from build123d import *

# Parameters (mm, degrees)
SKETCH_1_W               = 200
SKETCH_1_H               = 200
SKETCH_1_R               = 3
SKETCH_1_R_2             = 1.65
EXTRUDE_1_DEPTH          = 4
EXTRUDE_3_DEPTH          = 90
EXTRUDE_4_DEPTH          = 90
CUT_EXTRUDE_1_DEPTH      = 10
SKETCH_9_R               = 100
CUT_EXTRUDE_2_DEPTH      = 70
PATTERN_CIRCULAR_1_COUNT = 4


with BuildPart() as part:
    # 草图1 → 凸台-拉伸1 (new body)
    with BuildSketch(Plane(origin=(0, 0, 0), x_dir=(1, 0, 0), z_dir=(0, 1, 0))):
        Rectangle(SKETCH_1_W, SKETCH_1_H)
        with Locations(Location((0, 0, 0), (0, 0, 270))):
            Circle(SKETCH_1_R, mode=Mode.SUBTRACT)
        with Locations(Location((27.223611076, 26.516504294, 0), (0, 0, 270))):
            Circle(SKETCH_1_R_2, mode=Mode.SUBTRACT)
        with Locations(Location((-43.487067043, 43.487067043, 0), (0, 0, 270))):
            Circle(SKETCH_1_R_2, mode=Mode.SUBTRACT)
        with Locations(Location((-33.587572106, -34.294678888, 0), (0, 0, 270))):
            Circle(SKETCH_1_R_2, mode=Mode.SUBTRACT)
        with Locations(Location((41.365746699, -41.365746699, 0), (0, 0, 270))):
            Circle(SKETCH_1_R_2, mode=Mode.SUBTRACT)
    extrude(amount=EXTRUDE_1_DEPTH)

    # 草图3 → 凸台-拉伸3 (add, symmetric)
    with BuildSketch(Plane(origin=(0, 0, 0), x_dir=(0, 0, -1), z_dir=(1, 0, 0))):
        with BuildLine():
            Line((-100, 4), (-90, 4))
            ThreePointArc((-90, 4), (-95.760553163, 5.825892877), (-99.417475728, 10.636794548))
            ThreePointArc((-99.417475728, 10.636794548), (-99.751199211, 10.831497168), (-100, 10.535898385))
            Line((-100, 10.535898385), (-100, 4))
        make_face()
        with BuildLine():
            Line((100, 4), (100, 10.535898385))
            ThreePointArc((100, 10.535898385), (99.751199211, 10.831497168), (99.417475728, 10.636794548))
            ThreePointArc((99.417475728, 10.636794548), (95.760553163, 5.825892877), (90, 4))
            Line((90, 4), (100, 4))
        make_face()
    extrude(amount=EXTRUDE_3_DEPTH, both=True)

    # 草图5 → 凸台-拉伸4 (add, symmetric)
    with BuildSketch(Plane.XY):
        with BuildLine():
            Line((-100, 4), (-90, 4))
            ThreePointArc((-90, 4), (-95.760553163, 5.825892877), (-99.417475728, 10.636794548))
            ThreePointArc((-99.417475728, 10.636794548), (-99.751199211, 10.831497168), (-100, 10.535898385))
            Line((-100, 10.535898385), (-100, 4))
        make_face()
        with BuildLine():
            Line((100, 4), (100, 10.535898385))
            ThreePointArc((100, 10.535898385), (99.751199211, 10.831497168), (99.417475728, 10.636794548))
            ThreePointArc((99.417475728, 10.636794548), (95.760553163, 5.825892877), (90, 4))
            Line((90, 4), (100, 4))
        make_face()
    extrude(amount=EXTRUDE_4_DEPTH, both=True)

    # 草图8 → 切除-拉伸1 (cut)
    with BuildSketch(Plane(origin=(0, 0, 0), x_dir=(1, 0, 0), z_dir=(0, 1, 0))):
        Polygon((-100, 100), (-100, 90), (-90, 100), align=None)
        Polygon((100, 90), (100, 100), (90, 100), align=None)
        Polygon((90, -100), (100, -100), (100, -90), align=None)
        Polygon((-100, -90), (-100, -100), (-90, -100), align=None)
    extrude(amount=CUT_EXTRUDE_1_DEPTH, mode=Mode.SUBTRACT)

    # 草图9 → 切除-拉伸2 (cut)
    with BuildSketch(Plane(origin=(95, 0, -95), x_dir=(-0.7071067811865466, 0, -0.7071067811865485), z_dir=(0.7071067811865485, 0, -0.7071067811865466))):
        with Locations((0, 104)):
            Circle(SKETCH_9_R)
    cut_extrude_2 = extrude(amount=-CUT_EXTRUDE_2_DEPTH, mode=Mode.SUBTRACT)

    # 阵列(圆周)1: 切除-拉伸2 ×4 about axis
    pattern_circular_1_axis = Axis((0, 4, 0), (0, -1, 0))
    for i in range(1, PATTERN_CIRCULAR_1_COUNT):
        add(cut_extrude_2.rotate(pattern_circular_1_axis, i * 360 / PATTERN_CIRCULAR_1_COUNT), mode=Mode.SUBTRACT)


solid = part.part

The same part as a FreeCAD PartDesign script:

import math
import FreeCAD as App
import Part
import Sketcher
Q = App.Units.Quantity

doc = App.newDocument("Part")
body = doc.addObject("PartDesign::Body", "Body")

# Sketch on XZ plane
sketch1 = body.newObject("Sketcher::SketchObject", "Sketch")
sketch1.AttachmentSupport = (doc.getObject("XZ_Plane"), [""])
sketch1.MapMode = "FlatFace"
sketch1.addGeometry(Part.LineSegment(App.Vector(-100, -100, 0), App.Vector(-100, 100, 0)), False)
sketch1.addGeometry(Part.LineSegment(App.Vector(-100, 100, 0), App.Vector(100, 100, 0)), False)
sketch1.addGeometry(Part.LineSegment(App.Vector(100, 100, 0), App.Vector(100, -100, 0)), False)
sketch1.addGeometry(Part.LineSegment(App.Vector(100, -100, 0), App.Vector(-100, -100, 0)), False)
sketch1.addGeometry(Part.Circle(App.Vector(-33.587572, 34.294679, 0), App.Vector(0, 0, 1), 1.65), False)
sketch1.addGeometry(Part.Circle(App.Vector(41.365747, 41.365747, 0), App.Vector(0, 0, 1), 1.65), False)
sketch1.addGeometry(Part.Circle(App.Vector(0, 0, 0), App.Vector(0, 0, 1), 3), False)
sketch1.addGeometry(Part.Circle(App.Vector(-43.487067, -43.487067, 0), App.Vector(0, 0, 1), 1.65), False)
sketch1.addGeometry(Part.Circle(App.Vector(27.223611, -26.516504, 0), App.Vector(0, 0, 1), 1.65), False)
sketch1.addConstraint(Sketcher.Constraint("Coincident", 0, 2, 1, 1))
sketch1.addConstraint(Sketcher.Constraint("Coincident", 1, 2, 2, 1))
sketch1.addConstraint(Sketcher.Constraint("Coincident", 2, 2, 3, 1))
sketch1.addConstraint(Sketcher.Constraint("Coincident", 3, 2, 0, 1))
sketch1.addConstraint(Sketcher.Constraint("Vertical", 0))
sketch1.addConstraint(Sketcher.Constraint("Horizontal", 1))
sketch1.addConstraint(Sketcher.Constraint("Vertical", 2))
sketch1.addConstraint(Sketcher.Constraint("Horizontal", 3))
sketch1.addConstraint(Sketcher.Constraint("Coincident", 6, 3, -1, 1))
sketch1.addConstraint(Sketcher.Constraint("Equal", 4, 5))
sketch1.addConstraint(Sketcher.Constraint("Equal", 5, 7))
sketch1.addConstraint(Sketcher.Constraint("Equal", 7, 8))
sketch1.addConstraint(Sketcher.Constraint("Symmetric", 0, 2, 2, 2, -1, 1))
sketch1.addConstraint(Sketcher.Constraint("Equal", 3, 0))
sketch1.addConstraint(Sketcher.Constraint("Diameter", 6, Q("6 mm")))
sketch1.addConstraint(Sketcher.Constraint("Diameter", 4, Q("3.3 mm")))
sketch1.addConstraint(Sketcher.Constraint("DistanceX", 1, 1, 1, 2, Q("200 mm")))
sketch1.addConstraint(Sketcher.Constraint("DistanceY", -1, 1, 4, 3, Q("34.294679 mm")))
sketch1.addConstraint(Sketcher.Constraint("DistanceX", -1, 1, 8, 3, Q("27.223611 mm")))
sketch1.addConstraint(Sketcher.Constraint("DistanceX", 4, 3, 5, 3, Q("74.953319 mm")))
sketch1.addConstraint(Sketcher.Constraint("DistanceY", 8, 3, 5, 3, Q("67.882251 mm")))
sketch1.addConstraint(Sketcher.Constraint("DistanceX", 7, 3, 8, 3, Q("70.710678 mm")))
sketch1.addConstraint(Sketcher.Constraint("DistanceX", 4, 3, -1, 1, Q("33.587572 mm")))
sketch1.addConstraint(Sketcher.Constraint("DistanceY", -1, 1, 5, 3, Q("41.365747 mm")))
sketch1.addConstraint(Sketcher.Constraint("DistanceY", 7, 3, -1, 1, Q("43.487067 mm")))
pad1 = body.newObject("PartDesign::Pad", "Pad")
pad1.Profile = sketch1
pad1.Length = 4
pad1.Reversed = True

# Sketch on YZ plane
sketch2 = body.newObject("Sketcher::SketchObject", "Sketch001")
sketch2.AttachmentSupport = (doc.getObject("YZ_Plane"), [""])
sketch2.MapMode = "FlatFace"
sketch2.addGeometry(Part.LineSegment(App.Vector(4, 100, 0), App.Vector(4, 90, 0)), False)
sketch2.addGeometry(Part.ArcOfCircle(Part.Circle(App.Vector(14, 90, 0), App.Vector(0, 0, 1), 10), math.radians(109.65286), math.radians(180)), False)
sketch2.addGeometry(Part.ArcOfCircle(Part.Circle(App.Vector(10.535898, 99.7, 0), App.Vector(0, 0, 1), 0.3), math.radians(-70.34714), math.radians(90)), False)
sketch2.addGeometry(Part.LineSegment(App.Vector(10.535898, 100, 0), App.Vector(4, 100, 0)), False)
sketch2.addGeometry(Part.LineSegment(App.Vector(4, -100, 0), App.Vector(10.535898, -100, 0)), False)
sketch2.addGeometry(Part.ArcOfCircle(Part.Circle(App.Vector(10.535898, -99.7, 0), App.Vector(0, 0, 1), 0.3), math.radians(-90), math.radians(70.34714)), False)
sketch2.addGeometry(Part.ArcOfCircle(Part.Circle(App.Vector(14, -90, 0), App.Vector(0, 0, 1), 10), math.radians(180), math.radians(250.34714)), False)
sketch2.addGeometry(Part.LineSegment(App.Vector(4, -90, 0), App.Vector(4, -100, 0)), False)
sketch2.addConstraint(Sketcher.Constraint("Tangent", 0, 2, 1, 2))
sketch2.addConstraint(Sketcher.Constraint("Tangent", 1, 1, 2, 1))
sketch2.addConstraint(Sketcher.Constraint("Tangent", 2, 2, 3, 1))
sketch2.addConstraint(Sketcher.Constraint("Coincident", 3, 2, 0, 1))
sketch2.addConstraint(Sketcher.Constraint("Tangent", 4, 2, 5, 1))
sketch2.addConstraint(Sketcher.Constraint("Tangent", 5, 2, 6, 2))
sketch2.addConstraint(Sketcher.Constraint("Tangent", 6, 1, 7, 1))
sketch2.addConstraint(Sketcher.Constraint("Coincident", 7, 2, 4, 1))
sketch2.addConstraint(Sketcher.Constraint("Vertical", 0))
sketch2.addConstraint(Sketcher.Constraint("Horizontal", 3))
sketch2.addConstraint(Sketcher.Constraint("Horizontal", 4))
sketch2.addConstraint(Sketcher.Constraint("Vertical", 7))
sketch2.addConstraint(Sketcher.Constraint("Equal", 2, 5))
sketch2.addConstraint(Sketcher.Constraint("Equal", 1, 6))
sketch2.addConstraint(Sketcher.Constraint("Symmetric", 2, 3, 5, 3, -1))
sketch2.addConstraint(Sketcher.Constraint("Vertical", 1, 3, 6, 3))
sketch2.addConstraint(Sketcher.Constraint("Radius", 1, Q("10 mm")))
sketch2.addConstraint(Sketcher.Constraint("Radius", 2, Q("0.3 mm")))
sketch2.addConstraint(Sketcher.Constraint("DistanceY", 0, 2, 0, 1, Q("10 mm")))
sketch2.addConstraint(Sketcher.Constraint("DistanceX", -1, 1, 1, 3, Q("14 mm")))
sketch2.addConstraint(Sketcher.Constraint("DistanceY", -1, 1, 1, 3, Q("90 mm")))
pad2 = body.newObject("PartDesign::Pad", "Pad001")
pad2.Profile = sketch2
pad2.Length = 180
pad2.Midplane = True

# Sketch on XY plane
sketch3 = body.newObject("Sketcher::SketchObject", "Sketch002")
sketch3.AttachmentSupport = (doc.getObject("XY_Plane"), [""])
sketch3.MapMode = "FlatFace"
sketch3.addGeometry(Part.LineSegment(App.Vector(-100, 4, 0), App.Vector(-90, 4, 0)), False)
sketch3.addGeometry(Part.ArcOfCircle(Part.Circle(App.Vector(-90, 14, 0), App.Vector(0, 0, 1), 10), math.radians(-160.34714), math.radians(-90)), False)
sketch3.addGeometry(Part.ArcOfCircle(Part.Circle(App.Vector(-99.7, 10.535898, 0), App.Vector(0, 0, 1), 0.3), math.radians(19.65286), math.radians(180)), False)
sketch3.addGeometry(Part.LineSegment(App.Vector(-100, 10.535898, 0), App.Vector(-100, 4, 0)), False)
sketch3.addGeometry(Part.LineSegment(App.Vector(100, 4, 0), App.Vector(100, 10.535898, 0)), False)
sketch3.addGeometry(Part.ArcOfCircle(Part.Circle(App.Vector(99.7, 10.535898, 0), App.Vector(0, 0, 1), 0.3), math.radians(0), math.radians(160.34714)), False)
sketch3.addGeometry(Part.ArcOfCircle(Part.Circle(App.Vector(90, 14, 0), App.Vector(0, 0, 1), 10), math.radians(-90), math.radians(-19.65286)), False)
sketch3.addGeometry(Part.LineSegment(App.Vector(90, 4, 0), App.Vector(100, 4, 0)), False)
sketch3.addConstraint(Sketcher.Constraint("Tangent", 0, 2, 1, 2))
sketch3.addConstraint(Sketcher.Constraint("Tangent", 1, 1, 2, 1))
sketch3.addConstraint(Sketcher.Constraint("Tangent", 2, 2, 3, 1))
sketch3.addConstraint(Sketcher.Constraint("Coincident", 3, 2, 0, 1))
sketch3.addConstraint(Sketcher.Constraint("Tangent", 4, 2, 5, 1))
sketch3.addConstraint(Sketcher.Constraint("Tangent", 5, 2, 6, 2))
sketch3.addConstraint(Sketcher.Constraint("Tangent", 6, 1, 7, 1))
sketch3.addConstraint(Sketcher.Constraint("Coincident", 7, 2, 4, 1))
sketch3.addConstraint(Sketcher.Constraint("Horizontal", 0))
sketch3.addConstraint(Sketcher.Constraint("Vertical", 3))
sketch3.addConstraint(Sketcher.Constraint("Vertical", 4))
sketch3.addConstraint(Sketcher.Constraint("Horizontal", 7))
sketch3.addConstraint(Sketcher.Constraint("Equal", 2, 5))
sketch3.addConstraint(Sketcher.Constraint("Equal", 1, 6))
sketch3.addConstraint(Sketcher.Constraint("Symmetric", 2, 3, 5, 3, -2))
sketch3.addConstraint(Sketcher.Constraint("Horizontal", 1, 3, 6, 3))
sketch3.addConstraint(Sketcher.Constraint("Radius", 1, Q("10 mm")))
sketch3.addConstraint(Sketcher.Constraint("Radius", 2, Q("0.3 mm")))
sketch3.addConstraint(Sketcher.Constraint("DistanceX", 0, 1, 0, 2, Q("10 mm")))
sketch3.addConstraint(Sketcher.Constraint("DistanceX", 1, 3, -1, 1, Q("90 mm")))
sketch3.addConstraint(Sketcher.Constraint("DistanceY", -1, 1, 1, 3, Q("14 mm")))
pad3 = body.newObject("PartDesign::Pad", "Pad002")
pad3.Profile = sketch3
pad3.Length = 180
pad3.Midplane = True

# Sketch on XZ plane
sketch4 = body.newObject("Sketcher::SketchObject", "Sketch003")
sketch4.AttachmentSupport = (doc.getObject("XZ_Plane"), [""])
sketch4.MapMode = "FlatFace"
sketch4.addGeometry(Part.LineSegment(App.Vector(-100, -100, 0), App.Vector(-100, -90, 0)), False)
sketch4.addGeometry(Part.LineSegment(App.Vector(-100, -90, 0), App.Vector(-90, -100, 0)), False)
sketch4.addGeometry(Part.LineSegment(App.Vector(-90, -100, 0), App.Vector(-100, -100, 0)), False)
sketch4.addGeometry(Part.LineSegment(App.Vector(100, -90, 0), App.Vector(100, -100, 0)), False)
sketch4.addGeometry(Part.LineSegment(App.Vector(100, -100, 0), App.Vector(90, -100, 0)), False)
sketch4.addGeometry(Part.LineSegment(App.Vector(90, -100, 0), App.Vector(100, -90, 0)), False)
sketch4.addGeometry(Part.LineSegment(App.Vector(90, 100, 0), App.Vector(100, 100, 0)), False)
sketch4.addGeometry(Part.LineSegment(App.Vector(100, 100, 0), App.Vector(100, 90, 0)), False)
sketch4.addGeometry(Part.LineSegment(App.Vector(100, 90, 0), App.Vector(90, 100, 0)), False)
sketch4.addGeometry(Part.LineSegment(App.Vector(-100, 90, 0), App.Vector(-100, 100, 0)), False)
sketch4.addGeometry(Part.LineSegment(App.Vector(-100, 100, 0), App.Vector(-90, 100, 0)), False)
sketch4.addGeometry(Part.LineSegment(App.Vector(-90, 100, 0), App.Vector(-100, 90, 0)), False)
sketch4.addConstraint(Sketcher.Constraint("Coincident", 0, 2, 1, 1))
sketch4.addConstraint(Sketcher.Constraint("Coincident", 1, 2, 2, 1))
sketch4.addConstraint(Sketcher.Constraint("Coincident", 2, 2, 0, 1))
sketch4.addConstraint(Sketcher.Constraint("Coincident", 3, 2, 4, 1))
sketch4.addConstraint(Sketcher.Constraint("Coincident", 4, 2, 5, 1))
sketch4.addConstraint(Sketcher.Constraint("Coincident", 5, 2, 3, 1))
sketch4.addConstraint(Sketcher.Constraint("Coincident", 6, 2, 7, 1))
sketch4.addConstraint(Sketcher.Constraint("Coincident", 7, 2, 8, 1))
sketch4.addConstraint(Sketcher.Constraint("Coincident", 8, 2, 6, 1))
sketch4.addConstraint(Sketcher.Constraint("Coincident", 9, 2, 10, 1))
sketch4.addConstraint(Sketcher.Constraint("Coincident", 10, 2, 11, 1))
sketch4.addConstraint(Sketcher.Constraint("Coincident", 11, 2, 9, 1))
sketch4.addConstraint(Sketcher.Constraint("Vertical", 0))
sketch4.addConstraint(Sketcher.Constraint("Horizontal", 2))
sketch4.addConstraint(Sketcher.Constraint("Vertical", 3))
sketch4.addConstraint(Sketcher.Constraint("Horizontal", 4))
sketch4.addConstraint(Sketcher.Constraint("Horizontal", 6))
sketch4.addConstraint(Sketcher.Constraint("Vertical", 7))
sketch4.addConstraint(Sketcher.Constraint("Vertical", 9))
sketch4.addConstraint(Sketcher.Constraint("Horizontal", 10))
sketch4.addConstraint(Sketcher.Constraint("Symmetric", 2, 2, 6, 2, -1, 1))
sketch4.addConstraint(Sketcher.Constraint("Symmetric", 3, 2, 9, 2, -1, 1))
sketch4.addConstraint(Sketcher.Constraint("Symmetric", 2, 2, 3, 2, -2))
sketch4.addConstraint(Sketcher.Constraint("Perpendicular", 1, 5))
sketch4.addConstraint(Sketcher.Constraint("Perpendicular", 5, 8))
sketch4.addConstraint(Sketcher.Constraint("Perpendicular", 8, 11))
sketch4.addConstraint(Sketcher.Constraint("Horizontal", 0, 2, 5, 2))
sketch4.addConstraint(Sketcher.Constraint("Horizontal", 7, 2, 11, 2))
sketch4.addConstraint(Sketcher.Constraint("Vertical", 4, 2, 8, 2))
sketch4.addConstraint(Sketcher.Constraint("Vertical", 1, 2, 10, 2))
sketch4.addConstraint(Sketcher.Constraint("DistanceX", 2, 2, 2, 1, Q("10 mm")))
sketch4.addConstraint(Sketcher.Constraint("DistanceX", 0, 2, -1, 1, Q("100 mm")))
sketch4.addConstraint(Sketcher.Constraint("DistanceY", 0, 2, -1, 1, Q("90 mm")))
pocket1 = body.newObject("PartDesign::Pocket", "Pocket")
pocket1.Profile = sketch4
pocket1.Length = 10

# Sketch on an angled plane
sketch5 = body.newObject("Sketcher::SketchObject", "Sketch004")
sketch5.Placement = App.Placement(App.Vector(95, 0, -95), App.Rotation(App.Vector(-0.707106781, 0, -0.707106781), App.Vector(0, 0.999999999, 0), App.Vector(0.707106781, 0, -0.707106781), "ZXY"))
sketch5.addGeometry(Part.Circle(App.Vector(0, 104, 0), App.Vector(0, 0, 1), 100), False)
sketch5.addConstraint(Sketcher.Constraint("PointOnObject", 0, 3, -2))
sketch5.addConstraint(Sketcher.Constraint("Diameter", 0, Q("200 mm")))
sketch5.addConstraint(Sketcher.Constraint("DistanceY", -1, 1, 0, 3, Q("104 mm")))
pocket2 = body.newObject("PartDesign::Pocket", "Pocket001")
pocket2.Profile = sketch5
pocket2.Length = 70
doc.recompute()

polarpattern = body.newObject("PartDesign::PolarPattern", "PolarPattern")
polarpattern.Originals = [pocket2]
polarpattern.Axis = (doc.getObject("Y_Axis"), [""])
polarpattern.Angle = 360
polarpattern.Occurrences = 4
body.Tip = polarpattern

doc.recompute()
